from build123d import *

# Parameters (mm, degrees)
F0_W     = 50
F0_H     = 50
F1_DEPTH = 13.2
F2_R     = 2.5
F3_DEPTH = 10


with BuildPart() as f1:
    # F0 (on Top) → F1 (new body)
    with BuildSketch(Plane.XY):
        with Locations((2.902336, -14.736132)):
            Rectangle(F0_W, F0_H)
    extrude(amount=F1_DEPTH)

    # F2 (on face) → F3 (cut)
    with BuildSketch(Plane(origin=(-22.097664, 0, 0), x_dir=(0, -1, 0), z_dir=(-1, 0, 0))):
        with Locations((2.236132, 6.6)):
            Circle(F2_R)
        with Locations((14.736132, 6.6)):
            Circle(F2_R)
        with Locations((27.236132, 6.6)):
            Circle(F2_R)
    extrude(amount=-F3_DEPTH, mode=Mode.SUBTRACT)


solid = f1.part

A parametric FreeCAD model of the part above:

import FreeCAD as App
import Part
import Sketcher

V = App.Vector


def add_polygon(sketch, points):
    """Adds a closed chain of lines whose ends are joined by coincident constraints."""
    first, n = sketch.GeometryCount, len(points)
    for a, b in zip(points, points[1:] + points[:1]):
        sketch.addGeometry(Part.LineSegment(App.Vector(*a, 0), App.Vector(*b, 0)), False)
    for i in range(n):
        sketch.addConstraint(Sketcher.Constraint("Coincident", first + i, 2, first + (i + 1) % n, 1))

doc = App.newDocument("Part")
body = doc.addObject("PartDesign::Body", "Body")

# Sketch on XY plane
sketch1 = body.newObject("Sketcher::SketchObject", "Sketch")
sketch1.AttachmentSupport = (doc.getObject("XY_Plane"), [""])
sketch1.MapMode = "FlatFace"
add_polygon(sketch1, [(-22, 10), (-22, -40), (28, -40), (28, 10)])  # lines 0-3
sketch1.addConstraint([
    Sketcher.Constraint("Vertical", 0),
    Sketcher.Constraint("Horizontal", 1),
    Sketcher.Constraint("Vertical", 2),
    Sketcher.Constraint("Horizontal", 3),
    Sketcher.Constraint("Equal", 3, 0),
    Sketcher.Constraint("DistanceX", 1, 1, 1, 2, 50.0),
    Sketcher.Constraint("DistanceY", 0, 2, -1, 1, 39.736132),
    Sketcher.Constraint("DistanceX", 0, 2, -1, 1, 22.097664),
])
pad1 = body.newObject("PartDesign::Pad", "Pad")
pad1.Profile = sketch1
pad1.Length = 13.2

# Sketch on YZ plane
sketch2 = body.newObject("Sketcher::SketchObject", "Sketch001")
sketch2.AttachmentSupport = (doc.getObject("YZ_Plane"), [""])
sketch2.MapMode = "FlatFace"
sketch2.AttachmentOffset = App.Placement(V(0, 0, -22.097664), App.Rotation())
sketch2.addGeometry([
    Part.Circle(V(-2.2, 6.6, 0), V(0, 0, 1), 2.5),
    Part.Circle(V(-14.7, 6.6, 0), V(0, 0, 1), 2.5),
    Part.Circle(V(-27.2, 6.6, 0), V(0, 0, 1), 2.5),
], False)
sketch2.addConstraint([
    Sketcher.Constraint("Equal", 0, 1),
    Sketcher.Constraint("Equal", 1, 2),
    Sketcher.Constraint("Horizontal", 0, 3, 1, 3),
    Sketcher.Constraint("Horizontal", 1, 3, 2, 3),
    Sketcher.Constraint("Diameter", 0, 5.0),
    Sketcher.Constraint("DistanceX", 2, 3, 0, 3, 25.0),
    Sketcher.Constraint("DistanceY", -1, 1, 0, 3, 6.6),
    Sketcher.Constraint("DistanceX", 1, 3, 0, 3, 12.5),
    Sketcher.Constraint("DistanceX", 0, 3, -1, 1, 2.236132),
])
pocket1 = body.newObject("PartDesign::Pocket", "Pocket")
pocket1.Profile = sketch2
pocket1.Length = 10
pocket1.Reversed = True

doc.recompute()
